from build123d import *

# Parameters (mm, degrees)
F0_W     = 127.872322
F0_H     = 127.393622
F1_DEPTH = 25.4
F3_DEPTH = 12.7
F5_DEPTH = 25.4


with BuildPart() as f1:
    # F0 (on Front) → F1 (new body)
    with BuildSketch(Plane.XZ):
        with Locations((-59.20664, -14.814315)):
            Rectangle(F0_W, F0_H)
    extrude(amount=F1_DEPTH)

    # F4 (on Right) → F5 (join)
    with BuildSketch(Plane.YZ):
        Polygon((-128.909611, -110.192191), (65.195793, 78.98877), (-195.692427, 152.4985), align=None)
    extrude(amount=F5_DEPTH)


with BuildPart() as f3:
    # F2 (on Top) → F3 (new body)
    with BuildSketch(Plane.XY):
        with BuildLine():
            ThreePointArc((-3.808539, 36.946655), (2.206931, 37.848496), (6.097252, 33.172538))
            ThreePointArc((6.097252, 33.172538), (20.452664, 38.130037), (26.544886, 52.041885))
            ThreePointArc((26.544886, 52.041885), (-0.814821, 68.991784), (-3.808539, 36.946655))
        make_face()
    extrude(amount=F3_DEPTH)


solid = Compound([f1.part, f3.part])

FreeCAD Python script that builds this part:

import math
import FreeCAD as App
import Part
import Sketcher
Q = App.Units.Quantity

doc = App.newDocument("Part")
body = doc.addObject("PartDesign::Body", "Body")

# Sketch on XZ plane
sketch1 = body.newObject("Sketcher::SketchObject", "Sketch")
sketch1.AttachmentSupport = (doc.getObject("XZ_Plane"), [""])
sketch1.MapMode = "FlatFace"
sketch1.addGeometry([
    Part.LineSegment(App.Vector(-123.142801, 48.882496, 0), App.Vector(-123.142801, -78.511126, 0)),
    Part.LineSegment(App.Vector(-123.142801, -78.511126, 0), App.Vector(4.729521, -78.511126, 0)),
    Part.LineSegment(App.Vector(4.729521, -78.511126, 0), App.Vector(4.729521, 48.882496, 0)),
    Part.LineSegment(App.Vector(4.729521, 48.882496, 0), App.Vector(-123.142801, 48.882496, 0)),
], False)
sketch1.addConstraint([
    Sketcher.Constraint("Coincident", 0, 2, 1, 1),
    Sketcher.Constraint("Coincident", 1, 2, 2, 1),
    Sketcher.Constraint("Coincident", 2, 2, 3, 1),
    Sketcher.Constraint("Coincident", 3, 2, 0, 1),
    Sketcher.Constraint("Vertical", 0),
    Sketcher.Constraint("Horizontal", 1),
    Sketcher.Constraint("Vertical", 2),
    Sketcher.Constraint("Horizontal", 3),
    Sketcher.Constraint("DistanceX", 0, 2, -1, 1, 123.142801),
    Sketcher.Constraint("DistanceX", 1, 1, 1, 2, 127.872322),
    Sketcher.Constraint("DistanceY", 0, 2, 0, 1, 127.393622),
    Sketcher.Constraint("DistanceY", 0, 2, -1, 1, 78.511126),
])
pad1 = body.newObject("PartDesign::Pad", "Pad")
pad1.Profile = sketch1
pad1.Length = Q("1 in")

# Sketch on YZ plane
sketch2 = body.newObject("Sketcher::SketchObject", "Sketch001")
sketch2.AttachmentSupport = (doc.getObject("YZ_Plane"), [""])
sketch2.MapMode = "FlatFace"
sketch2.addGeometry([
    Part.LineSegment(App.Vector(-128.909611, -110.192191, 0), App.Vector(65.195793, 78.98877, 0)),
    Part.LineSegment(App.Vector(65.195793, 78.98877, 0), App.Vector(-195.692427, 152.4985, 0)),
    Part.LineSegment(App.Vector(-195.692427, 152.4985, 0), App.Vector(-128.909611, -110.192191, 0)),
], False)
sketch2.addConstraint([
    Sketcher.Constraint("Coincident", 0, 2, 1, 1),
    Sketcher.Constraint("Coincident", 1, 2, 2, 1),
    Sketcher.Constraint("Coincident", 2, 2, 0, 1),
    Sketcher.Constraint("Equal", 0, 1),
    Sketcher.Constraint("Equal", 1, 2),
    Sketcher.Constraint("DistanceY", -1, 1, 1, 2, 152.4985),
    Sketcher.Constraint("DistanceY", -1, 1, 0, 2, 78.98877),
    Sketcher.Constraint("DistanceX", 2, 2, -1, 1, 128.909611),
    Sketcher.Constraint("DistanceY", 2, 2, -1, 1, 110.192191),
])
pad2 = body.newObject("PartDesign::Pad", "Pad001")
pad2.Profile = sketch2
pad2.Length = Q("1 in")
body2 = doc.addObject("PartDesign::Body", "Body001")

# Sketch on XY plane
sketch3 = body2.newObject("Sketcher::SketchObject", "Sketch002")
sketch3.AttachmentSupport = (doc.getObject("XY_Plane001"), [""])
sketch3.MapMode = "FlatFace"
sketch3.addGeometry([
    Part.ArcOfCircle(Part.Circle(App.Vector(0, 32.056044, 0), App.Vector(0, 0, 1), 6.198632), math.radians(10.376712), math.radians(127.909499)),
    Part.ArcOfCircle(Part.Circle(App.Vector(7.614628, 52.041884, 0), App.Vector(0, 0, 1), 18.930258), math.radians(-94.59754), math.radians(0.000002)),
    Part.ArcOfCircle(Part.Circle(App.Vector(7.614627, 52.041885, 0), App.Vector(0, 0, 1), 18.930259), math.radians(0.000001), math.radians(232.883744)),
], False)
sketch3.addConstraint([
    Sketcher.Constraint("Coincident", 0, 1, 1, 1),
    Sketcher.Constraint("Tangent", 1, 2, 2, 1),
    Sketcher.Constraint("Coincident", 2, 2, 0, 2),
    Sketcher.Constraint("Equal", 1, 2),
    Sketcher.Constraint("PointOnObject", 0, 3, -2),
    Sketcher.Constraint("Horizontal", 2, 3, 1, 2),
    Sketcher.Constraint("Radius", 2, 18.930259),
    Sketcher.Constraint("Radius", 0, 6.198632),
    Sketcher.Constraint("DistanceX", -1, 1, 1, 3, 7.614628),
    Sketcher.Constraint("DistanceX", -1, 1, 0, 1, 6.097252),
    Sketcher.Constraint("DistanceY", -1, 1, 0, 3, 32.056044),
])
pad3 = body2.newObject("PartDesign::Pad", "Pad002")
pad3.Profile = sketch3
pad3.Length = Q("0.5 in")

doc.recompute()
